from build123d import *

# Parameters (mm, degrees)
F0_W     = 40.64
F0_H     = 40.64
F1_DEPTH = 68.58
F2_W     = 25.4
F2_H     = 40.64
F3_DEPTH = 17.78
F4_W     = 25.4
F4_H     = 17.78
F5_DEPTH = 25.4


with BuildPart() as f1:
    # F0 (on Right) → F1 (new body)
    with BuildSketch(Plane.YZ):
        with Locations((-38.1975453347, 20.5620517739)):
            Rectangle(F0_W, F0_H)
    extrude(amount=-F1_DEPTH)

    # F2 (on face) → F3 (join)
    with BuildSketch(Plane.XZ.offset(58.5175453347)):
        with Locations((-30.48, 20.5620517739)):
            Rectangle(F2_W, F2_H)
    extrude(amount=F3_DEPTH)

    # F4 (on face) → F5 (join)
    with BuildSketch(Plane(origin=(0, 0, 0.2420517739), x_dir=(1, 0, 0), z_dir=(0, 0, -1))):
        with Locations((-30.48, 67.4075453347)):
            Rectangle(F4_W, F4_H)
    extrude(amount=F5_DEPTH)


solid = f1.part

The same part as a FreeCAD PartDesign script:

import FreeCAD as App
import Part
import Sketcher

V = App.Vector
Q = App.Units.Quantity


def add_polygon(sketch, points):
    """Adds a closed chain of lines whose ends are joined by coincident constraints."""
    first, n = sketch.GeometryCount, len(points)
    for a, b in zip(points, points[1:] + points[:1]):
        sketch.addGeometry(Part.LineSegment(App.Vector(*a, 0), App.Vector(*b, 0)), False)
    for i in range(n):
        sketch.addConstraint(Sketcher.Constraint("Coincident", first + i, 2, first + (i + 1) % n, 1))

doc = App.newDocument("Part")
body = doc.addObject("PartDesign::Body", "Body")

# Sketch on YZ plane
sketch1 = doc.addObject("Sketcher::SketchObject", "Sketch")
body.addObject(sketch1)
sketch1.AttachmentSupport = (doc.YZ_Plane, [""])
sketch1.MapMode = "FlatFace"
add_polygon(sketch1, [(-59, 41), (-59, 0), (-18, 0), (-18, 41)])  # lines 0-3
sketch1.addConstraint([
    Sketcher.Constraint("Vertical", 0),
    Sketcher.Constraint("Horizontal", 1),
    Sketcher.Constraint("Vertical", 2),
    Sketcher.Constraint("Horizontal", 3),
    Sketcher.Constraint("Equal", 3, 0),
    Sketcher.Constraint("DistanceX", 1, 1, 1, 2, Q("1.6 in")),
    Sketcher.Constraint("DistanceY", -1, 1, 0, 2, 0.242052),
    Sketcher.Constraint("DistanceX", 0, 2, -1, 1, 58.517545),
])
pad1 = doc.addObject("PartDesign::Pad", "Pad")
body.addObject(pad1)
pad1.Profile = sketch1
pad1.Length = Q("2.7 in")
pad1.Reversed = True

# Sketch on XZ plane
sketch2 = doc.addObject("Sketcher::SketchObject", "Sketch001")
body.addObject(sketch2)
sketch2.AttachmentSupport = (doc.XZ_Plane, [""])
sketch2.MapMode = "FlatFace"
sketch2.AttachmentOffset = App.Placement(V(0, 0, 58.517545), App.Rotation())
add_polygon(sketch2, [(-43, 41), (-43, 0), (-18, 0), (-18, 41)])  # lines 0-3
sketch2.addConstraint([
    Sketcher.Constraint("Vertical", 0),
    Sketcher.Constraint("Horizontal", 1),
    Sketcher.Constraint("Vertical", 2),
    Sketcher.Constraint("Horizontal", 3),
    Sketcher.Constraint("DistanceX", 1, 1, 1, 2, Q("1 in")),
    Sketcher.Constraint("DistanceY", 0, 2, 0, 1, Q("1.6 in")),
    Sketcher.Constraint("DistanceX", 0, 2, -1, 1, Q("1.7 in")),
    Sketcher.Constraint("DistanceY", -1, 1, 0, 2, 0.242052),
])
pad2 = doc.addObject("PartDesign::Pad", "Pad001")
body.addObject(pad2)
pad2.Profile = sketch2
pad2.Length = Q("0.7 in")

# Sketch on XY plane
sketch3 = doc.addObject("Sketcher::SketchObject", "Sketch002")
body.addObject(sketch3)
sketch3.AttachmentSupport = (doc.XY_Plane, [""])
sketch3.MapMode = "FlatFace"
sketch3.AttachmentOffset = App.Placement(V(0, 0, 0.242052), App.Rotation())
add_polygon(sketch3, [(-43, -76), (-43, -59), (-18, -59), (-18, -76)])  # lines 0-3
sketch3.addConstraint([
    Sketcher.Constraint("Vertical", 0),
    Sketcher.Constraint("Horizontal", 1),
    Sketcher.Constraint("Vertical", 2),
    Sketcher.Constraint("Horizontal", 3),
    Sketcher.Constraint("DistanceX", 1, 1, 1, 2, Q("1 in")),
    Sketcher.Constraint("DistanceY", 0, 1, 0, 2, Q("0.7 in")),
    Sketcher.Constraint("DistanceX", 0, 2, -1, 1, Q("1.7 in")),
    Sketcher.Constraint("DistanceY", 0, 2, -1, 1, 58.517545),
])
pad3 = doc.addObject("PartDesign::Pad", "Pad002")
body.addObject(pad3)
pad3.Profile = sketch3
pad3.Length = Q("1 in")
pad3.Reversed = True

doc.recompute()
